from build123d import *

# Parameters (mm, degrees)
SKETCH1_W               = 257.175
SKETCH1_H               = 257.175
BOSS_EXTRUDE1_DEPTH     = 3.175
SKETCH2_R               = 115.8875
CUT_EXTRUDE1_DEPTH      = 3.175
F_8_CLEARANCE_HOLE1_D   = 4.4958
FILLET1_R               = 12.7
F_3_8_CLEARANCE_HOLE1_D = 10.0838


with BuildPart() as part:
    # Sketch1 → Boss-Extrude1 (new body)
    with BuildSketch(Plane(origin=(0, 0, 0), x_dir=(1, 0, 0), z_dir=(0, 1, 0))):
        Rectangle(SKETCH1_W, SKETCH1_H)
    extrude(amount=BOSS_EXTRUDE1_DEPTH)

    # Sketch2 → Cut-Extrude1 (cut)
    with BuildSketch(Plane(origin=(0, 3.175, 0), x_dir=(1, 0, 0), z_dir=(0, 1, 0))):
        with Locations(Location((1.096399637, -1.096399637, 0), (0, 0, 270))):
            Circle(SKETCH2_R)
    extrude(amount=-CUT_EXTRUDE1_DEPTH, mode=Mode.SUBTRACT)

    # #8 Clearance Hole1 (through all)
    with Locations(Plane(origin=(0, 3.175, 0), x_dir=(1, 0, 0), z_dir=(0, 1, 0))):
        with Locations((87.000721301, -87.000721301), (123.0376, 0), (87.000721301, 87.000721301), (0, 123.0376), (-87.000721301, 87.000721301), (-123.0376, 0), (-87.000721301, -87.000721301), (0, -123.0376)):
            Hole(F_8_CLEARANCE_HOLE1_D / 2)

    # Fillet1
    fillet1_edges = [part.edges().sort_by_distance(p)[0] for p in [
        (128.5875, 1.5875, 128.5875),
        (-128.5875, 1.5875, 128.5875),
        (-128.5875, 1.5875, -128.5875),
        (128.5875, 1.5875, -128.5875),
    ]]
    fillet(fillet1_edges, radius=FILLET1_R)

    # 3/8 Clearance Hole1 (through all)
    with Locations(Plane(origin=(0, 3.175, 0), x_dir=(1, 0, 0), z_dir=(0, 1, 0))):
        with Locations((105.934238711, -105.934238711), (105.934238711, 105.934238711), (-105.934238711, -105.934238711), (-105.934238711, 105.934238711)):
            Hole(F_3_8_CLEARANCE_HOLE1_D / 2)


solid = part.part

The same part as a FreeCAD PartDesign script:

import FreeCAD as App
import Part
import Sketcher

V = App.Vector
Q = App.Units.Quantity


def edges_at(feature, points):
    """Names of the edges that pass closest to the given points."""
    edges = feature.Shape.Edges
    near = lambda p: min(range(len(edges)), key=lambda i: edges[i].distToShape(Part.Vertex(*p))[0])
    return sorted({f"Edge{near(p) + 1}" for p in points})


def add_polygon(sketch, points):
    """Adds a closed chain of lines whose ends are joined by coincident constraints."""
    first, n = sketch.GeometryCount, len(points)
    for a, b in zip(points, points[1:] + points[:1]):
        sketch.addGeometry(Part.LineSegment(App.Vector(*a, 0), App.Vector(*b, 0)), False)
    for i in range(n):
        sketch.addConstraint(Sketcher.Constraint("Coincident", first + i, 2, first + (i + 1) % n, 1))

doc = App.newDocument("Part")
params = doc.addObject("Spreadsheet::Sheet", "Params")
for row, (alias, value) in enumerate([
    ("sketch1_width", "10.125 in"),
    ("pad1_length", "0.125 in"),
    ("sketch2_diameter", "9.125 in"),
    ("pocket1_length", "0.125 in"),
    ("sketch3_diameter", "0.177 in"),
    ("hole_diameter", "0.177 in"),
    ("fillet_radius", "0.5 in"),
    ("sketch4_diameter", "0.397 in"),
    ("hole2_diameter", "0.397 in"),
], start=1):
    params.set(f"A{row}", alias)
    params.set(f"B{row}", "=" + value)
    params.setAlias(f"B{row}", alias)

body = doc.addObject("PartDesign::Body", "Body")

# Sketch on XZ plane
sketch1 = body.newObject("Sketcher::SketchObject", "Sketch")
sketch1.AttachmentSupport = (doc.getObject("XZ_Plane"), [""])
sketch1.MapMode = "FlatFace"
add_polygon(sketch1, [(-128.5875, -128.5875), (-128.5875, 128.5875), (128.5875, 128.5875), (128.5875, -128.5875)])  # lines 0-3
sketch1.addConstraint(Sketcher.Constraint("Vertical", 0))
sketch1.addConstraint(Sketcher.Constraint("Horizontal", 1))
sketch1.addConstraint(Sketcher.Constraint("Vertical", 2))
sketch1.addConstraint(Sketcher.Constraint("Horizontal", 3))
sketch1.addConstraint(Sketcher.Constraint("Symmetric", 0, 2, 2, 2, -1, 1))
sketch1.addConstraint(Sketcher.Constraint("Equal", 3, 0))
sketch1.addConstraint(Sketcher.Constraint("DistanceX", 1, 1, 1, 2, Q("10.125 in")))
sketch1.setExpression("Constraints[10]", "Params.sketch1_width")
pad1 = body.newObject("PartDesign::Pad", "Pad")
pad1.Profile = sketch1
pad1.setExpression("Length", "Params.pad1_length")
pad1.Reversed = True

# Sketch on XZ plane
sketch2 = body.newObject("Sketcher::SketchObject", "Sketch001")
sketch2.AttachmentSupport = (doc.getObject("XZ_Plane"), [""])
sketch2.MapMode = "FlatFace"
sketch2.AttachmentOffset = App.Placement(V(0, 0, -0.125 * 25.4), App.Rotation())
sketch2.addGeometry(Part.Circle(V(1.0964, 1.0964, 0), V(0, 0, 1), 115.8875), False)
sketch2.addConstraint(Sketcher.Constraint("Diameter", 0, Q("9.125 in")))
sketch2.addConstraint(Sketcher.Constraint("DistanceX", -1, 1, 0, 3, Q("1.0964 mm")))
sketch2.addConstraint(Sketcher.Constraint("DistanceY", -1, 1, 0, 3, Q("1.0964 mm")))
sketch2.setExpression("Constraints[0]", "Params.sketch2_diameter")
pocket1 = body.newObject("PartDesign::Pocket", "Pocket")
pocket1.Profile = sketch2
pocket1.setExpression("Length", "Params.pocket1_length")
pocket1.Reversed = True

# Sketch on XZ plane
sketch3 = body.newObject("Sketcher::SketchObject", "Sketch002")
sketch3.AttachmentSupport = (doc.getObject("XZ_Plane"), [""])
sketch3.MapMode = "FlatFace"
sketch3.AttachmentOffset = App.Placement(V(0, 0, -0.125 * 25.4), App.Rotation())
sketch3.addGeometry(Part.Circle(V(87.000721, 87.000721, 0), V(0, 0, 1), 2.2479), False)
sketch3.addGeometry(Part.Circle(V(123.0376, 0, 0), V(0, 0, 1), 2.2479), False)
sketch3.addGeometry(Part.Circle(V(87.000721, -87.000721, 0), V(0, 0, 1), 2.2479), False)
sketch3.addGeometry(Part.Circle(V(0, -123.0376, 0), V(0, 0, 1), 2.2479), False)
sketch3.addGeometry(Part.Circle(V(-87.000721, -87.000721, 0), V(0, 0, 1), 2.2479), False)
sketch3.addGeometry(Part.Circle(V(-123.0376, 0, 0), V(0, 0, 1), 2.2479), False)
sketch3.addGeometry(Part.Circle(V(-87.000721, 87.000721, 0), V(0, 0, 1), 2.2479), False)
sketch3.addGeometry(Part.Circle(V(0, 123.0376, 0), V(0, 0, 1), 2.2479), False)
sketch3.addConstraint(Sketcher.Constraint("Equal", 0, 1))
sketch3.addConstraint(Sketcher.Constraint("Equal", 1, 2))
sketch3.addConstraint(Sketcher.Constraint("Equal", 2, 3))
sketch3.addConstraint(Sketcher.Constraint("Equal", 3, 4))
sketch3.addConstraint(Sketcher.Constraint("Equal", 4, 5))
sketch3.addConstraint(Sketcher.Constraint("Equal", 5, 6))
sketch3.addConstraint(Sketcher.Constraint("Equal", 6, 7))
sketch3.addConstraint(Sketcher.Constraint("Symmetric", 0, 3, 4, 3, -1, 1))
sketch3.addConstraint(Sketcher.Constraint("Symmetric", 1, 3, 5, 3, -1, 1))
sketch3.addConstraint(Sketcher.Constraint("Symmetric", 2, 3, 6, 3, -1, 1))
sketch3.addConstraint(Sketcher.Constraint("Symmetric", 3, 3, 7, 3, -1, 1))
sketch3.addConstraint(Sketcher.Constraint("Symmetric", 2, 3, 4, 3, -2))
sketch3.addConstraint(Sketcher.Constraint("PointOnObject", 1, 3, -1))
sketch3.addConstraint(Sketcher.Constraint("PointOnObject", 3, 3, -2))
sketch3.addConstraint(Sketcher.Constraint("Diameter", 0, Q("0.177 in")))
sketch3.addConstraint(Sketcher.Constraint("DistanceX", -1, 1, 1, 3, Q("4.844 in")))
sketch3.addConstraint(Sketcher.Constraint("DistanceY", 3, 3, -1, 1, Q("4.844 in")))
sketch3.addConstraint(Sketcher.Constraint("DistanceX", -1, 1, 0, 3, Q("87.000721 mm")))
sketch3.addConstraint(Sketcher.Constraint("DistanceY", -1, 1, 0, 3, Q("87.000721 mm")))
sketch3.setExpression("Constraints[14]", "Params.sketch3_diameter")
doc.recompute()
hole = body.newObject("PartDesign::Hole", "Hole")
hole.Profile = sketch3
hole.ThreadType = "None"
hole.setExpression("Diameter", "Params.hole_diameter")
hole.DepthType = "ThroughAll"
hole.Reversed = True
doc.recompute()

fillet = body.newObject("PartDesign::Fillet", "Fillet")
fillet.Base = (hole, edges_at(hole, [
    (128.588, 1.587, 128.588),
    (-128.588, 1.587, 128.588),
    (-128.588, 1.587, -128.588),
    (128.588, 1.587, -128.588),
]))
fillet.setExpression("Radius", "Params.fillet_radius")

# Sketch on XZ plane
sketch4 = body.newObject("Sketcher::SketchObject", "Sketch003")
sketch4.AttachmentSupport = (doc.getObject("XZ_Plane"), [""])
sketch4.MapMode = "FlatFace"
sketch4.AttachmentOffset = App.Placement(V(0, 0, -0.125 * 25.4), App.Rotation())
sketch4.addGeometry(Part.Circle(V(105.934239, 105.934239, 0), V(0, 0, 1), 5.0419), False)
sketch4.addGeometry(Part.Circle(V(105.934239, -105.934239, 0), V(0, 0, 1), 5.0419), False)
sketch4.addGeometry(Part.Circle(V(-105.934239, 105.934239, 0), V(0, 0, 1), 5.0419), False)
sketch4.addGeometry(Part.Circle(V(-105.934239, -105.934239, 0), V(0, 0, 1), 5.0419), False)
sketch4.addConstraint(Sketcher.Constraint("Equal", 0, 1))
sketch4.addConstraint(Sketcher.Constraint("Equal", 1, 2))
sketch4.addConstraint(Sketcher.Constraint("Equal", 2, 3))
sketch4.addConstraint(Sketcher.Constraint("Symmetric", 1, 3, 2, 3, -1, 1))
sketch4.addConstraint(Sketcher.Constraint("Symmetric", 0, 3, 3, 3, -1, 1))
sketch4.addConstraint(Sketcher.Constraint("Symmetric", 0, 3, 2, 3, -2))
sketch4.addConstraint(Sketcher.Constraint("Diameter", 0, Q("0.397 in")))
sketch4.addConstraint(Sketcher.Constraint("DistanceX", -1, 1, 0, 3, Q("105.934239 mm")))
sketch4.addConstraint(Sketcher.Constraint("DistanceY", -1, 1, 0, 3, Q("105.934239 mm")))
sketch4.setExpression("Constraints[6]", "Params.sketch4_diameter")
doc.recompute()
hole2 = body.newObject("PartDesign::Hole", "Hole001")
hole2.Profile = sketch4
hole2.ThreadType = "None"
hole2.setExpression("Diameter", "Params.hole2_diameter")
hole2.DepthType = "ThroughAll"
hole2.Reversed = True

doc.recompute()
